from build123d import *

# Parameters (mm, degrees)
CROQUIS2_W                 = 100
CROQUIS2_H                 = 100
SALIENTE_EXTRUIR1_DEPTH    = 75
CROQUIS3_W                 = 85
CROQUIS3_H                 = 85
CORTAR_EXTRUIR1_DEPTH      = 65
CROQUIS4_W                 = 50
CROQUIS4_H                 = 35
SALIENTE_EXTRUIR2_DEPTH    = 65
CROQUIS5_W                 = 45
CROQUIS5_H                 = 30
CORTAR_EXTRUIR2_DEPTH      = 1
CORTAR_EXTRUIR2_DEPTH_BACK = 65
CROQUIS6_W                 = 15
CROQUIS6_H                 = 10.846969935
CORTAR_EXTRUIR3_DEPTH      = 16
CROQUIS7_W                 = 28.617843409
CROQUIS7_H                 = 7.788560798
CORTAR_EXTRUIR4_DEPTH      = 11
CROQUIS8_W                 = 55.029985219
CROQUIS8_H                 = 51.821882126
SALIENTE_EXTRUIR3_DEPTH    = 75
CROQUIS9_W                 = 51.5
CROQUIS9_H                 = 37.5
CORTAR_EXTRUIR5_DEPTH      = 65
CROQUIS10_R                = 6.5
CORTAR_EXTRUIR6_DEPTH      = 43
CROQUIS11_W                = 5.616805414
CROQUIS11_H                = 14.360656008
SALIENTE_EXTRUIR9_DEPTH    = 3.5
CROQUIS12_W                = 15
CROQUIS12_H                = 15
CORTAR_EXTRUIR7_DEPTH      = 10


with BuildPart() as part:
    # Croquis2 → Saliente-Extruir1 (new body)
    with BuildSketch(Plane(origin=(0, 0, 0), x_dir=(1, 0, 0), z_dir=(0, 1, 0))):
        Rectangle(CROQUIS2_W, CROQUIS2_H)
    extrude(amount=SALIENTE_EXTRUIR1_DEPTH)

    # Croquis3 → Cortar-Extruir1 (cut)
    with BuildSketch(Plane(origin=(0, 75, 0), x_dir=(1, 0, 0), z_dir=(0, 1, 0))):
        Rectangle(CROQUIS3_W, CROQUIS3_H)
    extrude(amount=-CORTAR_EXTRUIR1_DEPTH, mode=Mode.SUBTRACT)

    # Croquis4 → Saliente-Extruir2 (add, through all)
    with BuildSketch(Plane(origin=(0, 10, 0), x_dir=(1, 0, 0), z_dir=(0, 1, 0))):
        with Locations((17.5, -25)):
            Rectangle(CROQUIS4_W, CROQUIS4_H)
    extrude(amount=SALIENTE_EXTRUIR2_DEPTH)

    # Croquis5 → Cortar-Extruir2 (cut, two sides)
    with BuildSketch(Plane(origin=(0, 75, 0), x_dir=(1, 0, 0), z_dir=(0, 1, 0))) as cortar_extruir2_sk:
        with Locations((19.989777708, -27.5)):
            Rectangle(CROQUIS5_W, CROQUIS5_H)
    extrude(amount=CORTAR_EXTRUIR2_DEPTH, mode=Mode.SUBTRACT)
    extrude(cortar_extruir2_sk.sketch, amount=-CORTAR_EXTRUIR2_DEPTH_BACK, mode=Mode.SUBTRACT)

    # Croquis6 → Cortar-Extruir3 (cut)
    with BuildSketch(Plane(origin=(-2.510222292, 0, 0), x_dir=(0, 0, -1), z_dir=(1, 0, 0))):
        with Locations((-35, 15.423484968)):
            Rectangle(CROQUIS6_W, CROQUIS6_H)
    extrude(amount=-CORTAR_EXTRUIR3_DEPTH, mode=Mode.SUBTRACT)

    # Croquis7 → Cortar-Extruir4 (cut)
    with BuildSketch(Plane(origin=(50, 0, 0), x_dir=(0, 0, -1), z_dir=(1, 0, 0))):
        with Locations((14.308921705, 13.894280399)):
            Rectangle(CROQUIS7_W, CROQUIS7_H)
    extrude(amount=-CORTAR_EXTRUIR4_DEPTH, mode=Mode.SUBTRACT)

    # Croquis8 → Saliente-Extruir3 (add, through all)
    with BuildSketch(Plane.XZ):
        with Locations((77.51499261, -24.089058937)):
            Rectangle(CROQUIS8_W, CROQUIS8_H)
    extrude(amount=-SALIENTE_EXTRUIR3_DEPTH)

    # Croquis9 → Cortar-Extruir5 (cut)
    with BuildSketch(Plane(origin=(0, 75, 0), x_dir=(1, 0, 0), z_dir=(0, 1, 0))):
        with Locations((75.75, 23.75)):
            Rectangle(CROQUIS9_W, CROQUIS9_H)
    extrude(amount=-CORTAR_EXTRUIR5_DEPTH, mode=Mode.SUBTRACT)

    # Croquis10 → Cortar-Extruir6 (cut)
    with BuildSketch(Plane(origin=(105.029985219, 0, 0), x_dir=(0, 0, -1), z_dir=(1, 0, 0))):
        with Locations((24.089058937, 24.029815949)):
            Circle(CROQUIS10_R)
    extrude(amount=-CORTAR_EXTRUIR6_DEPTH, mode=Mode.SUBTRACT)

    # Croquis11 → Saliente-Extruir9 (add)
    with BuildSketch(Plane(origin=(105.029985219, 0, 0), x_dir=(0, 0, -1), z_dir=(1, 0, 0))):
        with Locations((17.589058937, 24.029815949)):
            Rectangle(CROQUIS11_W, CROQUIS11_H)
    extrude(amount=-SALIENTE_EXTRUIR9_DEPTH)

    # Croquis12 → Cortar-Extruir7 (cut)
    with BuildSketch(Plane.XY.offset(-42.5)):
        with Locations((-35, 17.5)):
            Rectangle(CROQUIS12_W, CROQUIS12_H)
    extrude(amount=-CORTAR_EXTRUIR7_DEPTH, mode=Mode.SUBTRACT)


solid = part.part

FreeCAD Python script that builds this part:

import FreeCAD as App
import Part
import Sketcher

V = App.Vector
Q = App.Units.Quantity


def add_polygon(sketch, points):
    """Adds a closed chain of lines whose ends are joined by coincident constraints."""
    first, n = sketch.GeometryCount, len(points)
    for a, b in zip(points, points[1:] + points[:1]):
        sketch.addGeometry(Part.LineSegment(App.Vector(*a, 0), App.Vector(*b, 0)), False)
    for i in range(n):
        sketch.addConstraint(Sketcher.Constraint("Coincident", first + i, 2, first + (i + 1) % n, 1))

doc = App.newDocument("Part")
body = doc.addObject("PartDesign::Body", "Body")

# Sketch on XZ plane
sketch1 = body.newObject("Sketcher::SketchObject", "Sketch")
sketch1.AttachmentSupport = (doc.getObject("XZ_Plane"), [""])
sketch1.MapMode = "FlatFace"
add_polygon(sketch1, [(-50, -50), (-50, 50), (50, 50), (50, -50)])  # lines 0-3
sketch1.addConstraint([
    Sketcher.Constraint("Vertical", 0),
    Sketcher.Constraint("Horizontal", 1),
    Sketcher.Constraint("Vertical", 2),
    Sketcher.Constraint("Horizontal", 3),
    Sketcher.Constraint("Symmetric", 0, 2, 2, 2, -1, 1),
    Sketcher.Constraint("Equal", 3, 0),
    Sketcher.Constraint("DistanceX", 1, 1, 1, 2, Q("100 mm")),
])
pad1 = body.newObject("PartDesign::Pad", "Pad")
pad1.Profile = sketch1
pad1.Length = 75
pad1.Reversed = True

# Sketch on XZ plane
sketch2 = body.newObject("Sketcher::SketchObject", "Sketch001")
sketch2.AttachmentSupport = (doc.getObject("XZ_Plane"), [""])
sketch2.MapMode = "FlatFace"
sketch2.AttachmentOffset = App.Placement(V(0, 0, -75), App.Rotation())
add_polygon(sketch2, [(-42, -42), (-42, 42), (42, 42), (42, -42)])  # lines 0-3
sketch2.addConstraint([
    Sketcher.Constraint("Vertical", 0),
    Sketcher.Constraint("Horizontal", 1),
    Sketcher.Constraint("Vertical", 2),
    Sketcher.Constraint("Horizontal", 3),
    Sketcher.Constraint("Symmetric", 0, 2, 2, 2, -1, 1),
    Sketcher.Constraint("Equal", 3, 0),
    Sketcher.Constraint("DistanceX", 1, 1, 1, 2, Q("85 mm")),
])
pocket1 = body.newObject("PartDesign::Pocket", "Pocket")
pocket1.Profile = sketch2
pocket1.Length = 65
pocket1.Reversed = True

# Sketch on XZ plane
sketch3 = body.newObject("Sketcher::SketchObject", "Sketch002")
sketch3.AttachmentSupport = (doc.getObject("XZ_Plane"), [""])
sketch3.MapMode = "FlatFace"
sketch3.AttachmentOffset = App.Placement(V(0, 0, -10), App.Rotation())
add_polygon(sketch3, [(-8, 8), (-8, 42), (42, 42), (42, 8)])  # lines 0-3
sketch3.addConstraint([
    Sketcher.Constraint("Vertical", 0),
    Sketcher.Constraint("Horizontal", 1),
    Sketcher.Constraint("Vertical", 2),
    Sketcher.Constraint("Horizontal", 3),
    Sketcher.Constraint("DistanceX", 1, 1, 1, 2, Q("50 mm")),
    Sketcher.Constraint("DistanceY", 0, 1, 0, 2, Q("35 mm")),
    Sketcher.Constraint("DistanceX", 0, 2, -1, 1, Q("7.5 mm")),
    Sketcher.Constraint("DistanceY", -1, 1, 0, 2, Q("42.5 mm")),
])
pad2 = body.newObject("PartDesign::Pad", "Pad001")
pad2.Profile = sketch3
pad2.Length = 65
pad2.Reversed = True

# Sketch on XZ plane
sketch4 = body.newObject("Sketcher::SketchObject", "Sketch003")
sketch4.AttachmentSupport = (doc.getObject("XZ_Plane"), [""])
sketch4.MapMode = "FlatFace"
sketch4.AttachmentOffset = App.Placement(V(0, 0, -75), App.Rotation())
add_polygon(sketch4, [(-3, 12), (-3, 42), (42, 42), (42, 12)])  # lines 0-3
sketch4.addConstraint([
    Sketcher.Constraint("Vertical", 0),
    Sketcher.Constraint("Horizontal", 1),
    Sketcher.Constraint("Vertical", 2),
    Sketcher.Constraint("Horizontal", 3),
    Sketcher.Constraint("DistanceX", 1, 1, 1, 2, Q("45 mm")),
    Sketcher.Constraint("DistanceY", 0, 1, 0, 2, Q("30 mm")),
    Sketcher.Constraint("DistanceY", -1, 1, 0, 2, Q("42.5 mm")),
    Sketcher.Constraint("DistanceX", 0, 2, -1, 1, Q("2.510222 mm")),
])
pocket2 = body.newObject("PartDesign::Pocket", "Pocket001")
pocket2.Profile = sketch4
pocket2.Type = "TwoLengths"
pocket2.Length = 1
pocket2.Length2 = 65

# Sketch on YZ plane
sketch5 = body.newObject("Sketcher::SketchObject", "Sketch004")
sketch5.AttachmentSupport = (doc.getObject("YZ_Plane"), [""])
sketch5.MapMode = "FlatFace"
sketch5.AttachmentOffset = App.Placement(V(0, 0, -2.510222), App.Rotation())
add_polygon(sketch5, [(21, 42), (10, 42), (10, 28), (21, 28)])  # lines 0-3
sketch5.addConstraint([
    Sketcher.Constraint("Horizontal", 0),
    Sketcher.Constraint("Vertical", 1),
    Sketcher.Constraint("Horizontal", 2),
    Sketcher.Constraint("Vertical", 3),
    Sketcher.Constraint("DistanceY", 1, 2, 1, 1, Q("15 mm")),
    Sketcher.Constraint("DistanceX", -1, 1, 0, 2, Q("10 mm")),
    Sketcher.Constraint("DistanceY", -1, 1, 0, 2, Q("42.5 mm")),
    Sketcher.Constraint("DistanceX", 0, 2, 0, 1, Q("10.84697 mm")),
])
pocket3 = body.newObject("PartDesign::Pocket", "Pocket002")
pocket3.Profile = sketch5
pocket3.Length = 16

# Sketch on YZ plane
sketch6 = body.newObject("Sketcher::SketchObject", "Sketch005")
sketch6.AttachmentSupport = (doc.getObject("YZ_Plane"), [""])
sketch6.MapMode = "FlatFace"
sketch6.AttachmentOffset = App.Placement(V(0, 0, 50), App.Rotation())
add_polygon(sketch6, [(18, 0), (10, 0), (10, -29), (18, -29)])  # lines 0-3
sketch6.addConstraint([
    Sketcher.Constraint("Horizontal", 0),
    Sketcher.Constraint("Vertical", 1),
    Sketcher.Constraint("Horizontal", 2),
    Sketcher.Constraint("Vertical", 3),
    Sketcher.Constraint("PointOnObject", 0, 2, -1),
    Sketcher.Constraint("DistanceX", -1, 1, 0, 2, Q("10 mm")),
    Sketcher.Constraint("DistanceX", 0, 2, 0, 1, Q("7.788561 mm")),
    Sketcher.Constraint("DistanceY", 1, 2, 1, 1, Q("28.617843 mm")),
])
pocket4 = body.newObject("PartDesign::Pocket", "Pocket003")
pocket4.Profile = sketch6
pocket4.Length = 11

# Sketch on XZ plane
sketch7 = body.newObject("Sketcher::SketchObject", "Sketch006")
sketch7.AttachmentSupport = (doc.getObject("XZ_Plane"), [""])
sketch7.MapMode = "FlatFace"
add_polygon(sketch7, [(50, 2), (50, -50), (105, -50), (105, 2)])  # lines 0-3
sketch7.addConstraint([
    Sketcher.Constraint("Vertical", 0),
    Sketcher.Constraint("Horizontal", 1),
    Sketcher.Constraint("Vertical", 2),
    Sketcher.Constraint("Horizontal", 3),
    Sketcher.Constraint("DistanceX", -1, 1, 0, 2, Q("50 mm")),
    Sketcher.Constraint("DistanceY", 0, 2, -1, 1, Q("50 mm")),
    Sketcher.Constraint("DistanceX", 1, 1, 1, 2, Q("55.029985 mm")),
    Sketcher.Constraint("DistanceY", 0, 2, 0, 1, Q("51.821882 mm")),
])
pad3 = body.newObject("PartDesign::Pad", "Pad002")
pad3.Profile = sketch7
pad3.Length = 75
pad3.Reversed = True

# Sketch on XZ plane
sketch8 = body.newObject("Sketcher::SketchObject", "Sketch007")
sketch8.AttachmentSupport = (doc.getObject("XZ_Plane"), [""])
sketch8.MapMode = "FlatFace"
sketch8.AttachmentOffset = App.Placement(V(0, 0, -75), App.Rotation())
add_polygon(sketch8, [(50, -42), (50, -5), (102, -5), (102, -42)])  # lines 0-3
sketch8.addConstraint([
    Sketcher.Constraint("Vertical", 0),
    Sketcher.Constraint("Horizontal", 1),
    Sketcher.Constraint("Vertical", 2),
    Sketcher.Constraint("Horizontal", 3),
    Sketcher.Constraint("DistanceX", 1, 1, 1, 2, Q("51.5 mm")),
    Sketcher.Constraint("DistanceY", 0, 1, 0, 2, Q("37.5 mm")),
    Sketcher.Constraint("DistanceX", -1, 1, 0, 2, Q("50 mm")),
    Sketcher.Constraint("DistanceY", 0, 2, -1, 1, Q("5 mm")),
])
pocket5 = body.newObject("PartDesign::Pocket", "Pocket004")
pocket5.Profile = sketch8
pocket5.Length = 65
pocket5.Reversed = True

# Sketch on YZ plane
sketch9 = body.newObject("Sketcher::SketchObject", "Sketch008")
sketch9.AttachmentSupport = (doc.getObject("YZ_Plane"), [""])
sketch9.MapMode = "FlatFace"
sketch9.AttachmentOffset = App.Placement(V(0, 0, 105.029985), App.Rotation())
sketch9.addGeometry(Part.Circle(V(24, -24, 0), V(0, 0, 1), 6), False)
sketch9.addConstraint([
    Sketcher.Constraint("Diameter", 0, Q("13 mm")),
    Sketcher.Constraint("DistanceY", 0, 3, -1, 1, Q("24.089059 mm")),
    Sketcher.Constraint("DistanceX", -1, 1, 0, 3, Q("24.029816 mm")),
])
pocket6 = body.newObject("PartDesign::Pocket", "Pocket005")
pocket6.Profile = sketch9
pocket6.Length = 43

# Sketch on YZ plane
sketch10 = body.newObject("Sketcher::SketchObject", "Sketch009")
sketch10.AttachmentSupport = (doc.getObject("YZ_Plane"), [""])
sketch10.MapMode = "FlatFace"
sketch10.AttachmentOffset = App.Placement(V(0, 0, 105.029985), App.Rotation())
add_polygon(sketch10, [(31, -15), (17, -15), (17, -20), (31, -20)])  # lines 0-3
sketch10.addConstraint([
    Sketcher.Constraint("Horizontal", 0),
    Sketcher.Constraint("Vertical", 1),
    Sketcher.Constraint("Horizontal", 2),
    Sketcher.Constraint("Vertical", 3),
    Sketcher.Constraint("DistanceX", 0, 2, 0, 1, Q("14.360656 mm")),
    Sketcher.Constraint("DistanceY", 1, 2, 1, 1, Q("5.616805 mm")),
    Sketcher.Constraint("DistanceY", 1, 2, -1, 1, Q("20.397462 mm")),
    Sketcher.Constraint("DistanceX", -1, 1, 0, 2, Q("16.849488 mm")),
])
pad4 = body.newObject("PartDesign::Pad", "Pad003")
pad4.Profile = sketch10
pad4.Length = 3.5
pad4.Reversed = True

# Sketch on XY plane
sketch11 = body.newObject("Sketcher::SketchObject", "Sketch010")
sketch11.AttachmentSupport = (doc.getObject("XY_Plane"), [""])
sketch11.MapMode = "FlatFace"
sketch11.AttachmentOffset = App.Placement(V(0, 0, -42.5), App.Rotation())
add_polygon(sketch11, [(-42, 25), (-42, 10), (-28, 10), (-28, 25)])  # lines 0-3
sketch11.addConstraint([
    Sketcher.Constraint("Vertical", 0),
    Sketcher.Constraint("Horizontal", 1),
    Sketcher.Constraint("Vertical", 2),
    Sketcher.Constraint("Horizontal", 3),
    Sketcher.Constraint("Equal", 3, 0),
    Sketcher.Constraint("DistanceX", 1, 1, 1, 2, Q("15 mm")),
    Sketcher.Constraint("DistanceY", -1, 1, 0, 2, Q("10 mm")),
    Sketcher.Constraint("DistanceX", 0, 2, -1, 1, Q("42.5 mm")),
])
pocket7 = body.newObject("PartDesign::Pocket", "Pocket006")
pocket7.Profile = sketch11
pocket7.Length = 10

doc.recompute()
